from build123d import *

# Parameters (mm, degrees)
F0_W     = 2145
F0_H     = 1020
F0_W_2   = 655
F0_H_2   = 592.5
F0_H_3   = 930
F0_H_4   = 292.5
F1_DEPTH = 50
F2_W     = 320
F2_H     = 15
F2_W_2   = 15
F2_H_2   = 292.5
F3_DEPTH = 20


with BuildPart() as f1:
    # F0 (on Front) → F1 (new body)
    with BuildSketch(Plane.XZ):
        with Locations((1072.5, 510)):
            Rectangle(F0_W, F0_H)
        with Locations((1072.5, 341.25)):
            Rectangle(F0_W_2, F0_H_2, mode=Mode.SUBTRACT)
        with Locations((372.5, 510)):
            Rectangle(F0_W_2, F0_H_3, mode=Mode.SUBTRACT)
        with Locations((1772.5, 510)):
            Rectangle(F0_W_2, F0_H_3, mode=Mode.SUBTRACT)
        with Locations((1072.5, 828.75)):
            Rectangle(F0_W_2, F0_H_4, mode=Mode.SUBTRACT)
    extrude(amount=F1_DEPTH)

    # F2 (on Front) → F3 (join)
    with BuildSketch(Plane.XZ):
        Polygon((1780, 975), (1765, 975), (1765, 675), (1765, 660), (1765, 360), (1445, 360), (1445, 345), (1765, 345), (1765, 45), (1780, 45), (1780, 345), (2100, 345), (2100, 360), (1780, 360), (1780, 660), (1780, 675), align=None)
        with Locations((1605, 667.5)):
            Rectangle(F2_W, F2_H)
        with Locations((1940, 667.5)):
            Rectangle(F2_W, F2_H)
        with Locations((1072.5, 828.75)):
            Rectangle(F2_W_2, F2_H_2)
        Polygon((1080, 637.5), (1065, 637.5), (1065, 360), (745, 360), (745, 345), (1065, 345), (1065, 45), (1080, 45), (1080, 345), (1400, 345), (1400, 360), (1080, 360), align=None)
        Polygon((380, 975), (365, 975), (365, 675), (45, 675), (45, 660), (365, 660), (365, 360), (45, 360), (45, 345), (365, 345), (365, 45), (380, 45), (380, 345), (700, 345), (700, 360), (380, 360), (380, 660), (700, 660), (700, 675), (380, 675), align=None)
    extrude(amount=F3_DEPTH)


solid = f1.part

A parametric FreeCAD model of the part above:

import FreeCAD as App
import Part
import Sketcher

V = App.Vector


def add_polygon(sketch, points):
    """Adds a closed chain of lines whose ends are joined by coincident constraints."""
    first, n = sketch.GeometryCount, len(points)
    for a, b in zip(points, points[1:] + points[:1]):
        sketch.addGeometry(Part.LineSegment(App.Vector(*a, 0), App.Vector(*b, 0)), False)
    for i in range(n):
        sketch.addConstraint(Sketcher.Constraint("Coincident", first + i, 2, first + (i + 1) % n, 1))

doc = App.newDocument("Part")
body = doc.addObject("PartDesign::Body", "Body")

# Sketch on XZ plane
sketch1 = body.newObject("Sketcher::SketchObject", "Sketch")
sketch1.AttachmentSupport = (doc.getObject("XZ_Plane"), [""])
sketch1.MapMode = "FlatFace"
add_polygon(sketch1, [(0, 1020), (0, 0), (2145, 0), (2145, 1020)])  # lines 0-3
add_polygon(sketch1, [(1400, 45), (745, 45), (745, 638), (1400, 638)])  # lines 4-7
add_polygon(sketch1, [(700, 45), (45, 45), (45, 975), (700, 975)])  # lines 8-11
add_polygon(sketch1, [(2100, 45), (1445, 45), (1445, 975), (2100, 975)])  # lines 12-15
add_polygon(sketch1, [(1400, 682), (745, 682), (745, 975), (1400, 975)])  # lines 16-19
sketch1.addConstraint(Sketcher.Constraint("Vertical", 0))
sketch1.addConstraint(Sketcher.Constraint("Horizontal", 1))
sketch1.addConstraint(Sketcher.Constraint("Vertical", 2))
sketch1.addConstraint(Sketcher.Constraint("Horizontal", 3))
sketch1.addConstraint(Sketcher.Constraint("Horizontal", 4))
sketch1.addConstraint(Sketcher.Constraint("Vertical", 5))
sketch1.addConstraint(Sketcher.Constraint("Horizontal", 6))
sketch1.addConstraint(Sketcher.Constraint("Vertical", 7))
sketch1.addConstraint(Sketcher.Constraint("Horizontal", 8))
sketch1.addConstraint(Sketcher.Constraint("Vertical", 9))
sketch1.addConstraint(Sketcher.Constraint("Horizontal", 10))
sketch1.addConstraint(Sketcher.Constraint("Vertical", 11))
sketch1.addConstraint(Sketcher.Constraint("Horizontal", 12))
sketch1.addConstraint(Sketcher.Constraint("Vertical", 13))
sketch1.addConstraint(Sketcher.Constraint("Horizontal", 14))
sketch1.addConstraint(Sketcher.Constraint("Vertical", 15))
sketch1.addConstraint(Sketcher.Constraint("Horizontal", 16))
sketch1.addConstraint(Sketcher.Constraint("Vertical", 17))
sketch1.addConstraint(Sketcher.Constraint("Horizontal", 18))
sketch1.addConstraint(Sketcher.Constraint("Vertical", 19))
sketch1.addConstraint(Sketcher.Constraint("Coincident", 0, 2, -1, 1))
sketch1.addConstraint(Sketcher.Constraint("Horizontal", 7, 2, 8, 2))
sketch1.addConstraint(Sketcher.Constraint("Horizontal", 11, 2, 12, 2))
sketch1.addConstraint(Sketcher.Constraint("Horizontal", 10, 2, 13, 2))
sketch1.addConstraint(Sketcher.Constraint("Horizontal", 14, 2, 17, 2))
sketch1.addConstraint(Sketcher.Constraint("Vertical", 5, 2, 16, 2))
sketch1.addConstraint(Sketcher.Constraint("Vertical", 7, 2, 18, 2))
sketch1.addConstraint(Sketcher.Constraint("Equal", 6, 8))
sketch1.addConstraint(Sketcher.Constraint("Equal", 10, 12))
sketch1.addConstraint(Sketcher.Constraint("DistanceX", 1, 1, 1, 2, 2145.0))
sketch1.addConstraint(Sketcher.Constraint("DistanceX", 4, 2, 4, 1, 655.0))
sketch1.addConstraint(Sketcher.Constraint("DistanceY", 0, 2, 0, 1, 1020.0))
sketch1.addConstraint(Sketcher.Constraint("DistanceY", 9, 1, 9, 2, 930.0))
sketch1.addConstraint(Sketcher.Constraint("DistanceY", 5, 1, 5, 2, 592.5))
sketch1.addConstraint(Sketcher.Constraint("DistanceY", 17, 1, 17, 2, 292.5))
sketch1.addConstraint(Sketcher.Constraint("DistanceX", -1, 1, 4, 2, 745.0))
sketch1.addConstraint(Sketcher.Constraint("DistanceY", -1, 1, 4, 2, 45.0))
sketch1.addConstraint(Sketcher.Constraint("DistanceX", -1, 1, 8, 2, 45.0))
sketch1.addConstraint(Sketcher.Constraint("DistanceX", -1, 1, 12, 2, 1445.0))
pad1 = body.newObject("PartDesign::Pad", "Pad")
pad1.Profile = sketch1
pad1.Length = 50

# Sketch on XZ plane
sketch2 = body.newObject("Sketcher::SketchObject", "Sketch001")
sketch2.AttachmentSupport = (doc.getObject("XZ_Plane"), [""])
sketch2.MapMode = "FlatFace"
add_polygon(sketch2, [(1780, 975), (1765, 975), (1765, 675), (1445, 675), (1445, 660), (1765, 660), (1765, 360), (1445, 360), (1445, 345), (1765, 345), (1765, 45), (1780, 45), (1780, 345), (2100, 345), (2100, 360), (1780, 360), (1780, 660), (2100, 660), (2100, 675), (1780, 675)])  # lines 0-19
add_polygon(sketch2, [(1065, 975), (1065, 682), (1080, 682), (1080, 975)])  # lines 20-23
add_polygon(sketch2, [(1080, 638), (1065, 638), (1065, 360), (745, 360), (745, 345), (1065, 345), (1065, 45), (1080, 45), (1080, 345), (1400, 345), (1400, 360), (1080, 360)])  # lines 24-35
add_polygon(sketch2, [(380, 975), (365, 975), (365, 675), (45, 675), (45, 660), (365, 660), (365, 360), (45, 360), (45, 345), (365, 345), (365, 45), (380, 45), (380, 345), (700, 345), (700, 360), (380, 360), (380, 660), (700, 660), (700, 675), (380, 675)])  # lines 36-55
sketch2.addConstraint(Sketcher.Constraint("Horizontal", 0))
sketch2.addConstraint(Sketcher.Constraint("Vertical", 1))
sketch2.addConstraint(Sketcher.Constraint("Horizontal", 2))
sketch2.addConstraint(Sketcher.Constraint("Vertical", 3))
sketch2.addConstraint(Sketcher.Constraint("Horizontal", 4))
sketch2.addConstraint(Sketcher.Constraint("Vertical", 5))
sketch2.addConstraint(Sketcher.Constraint("Horizontal", 6))
sketch2.addConstraint(Sketcher.Constraint("Vertical", 7))
sketch2.addConstraint(Sketcher.Constraint("Horizontal", 8))
sketch2.addConstraint(Sketcher.Constraint("Vertical", 9))
sketch2.addConstraint(Sketcher.Constraint("Horizontal", 10))
sketch2.addConstraint(Sketcher.Constraint("Vertical", 11))
sketch2.addConstraint(Sketcher.Constraint("Horizontal", 12))
sketch2.addConstraint(Sketcher.Constraint("Vertical", 13))
sketch2.addConstraint(Sketcher.Constraint("Horizontal", 14))
sketch2.addConstraint(Sketcher.Constraint("Vertical", 15))
sketch2.addConstraint(Sketcher.Constraint("Horizontal", 16))
sketch2.addConstraint(Sketcher.Constraint("Vertical", 17))
sketch2.addConstraint(Sketcher.Constraint("Horizontal", 18))
sketch2.addConstraint(Sketcher.Constraint("Vertical", 19))
sketch2.addConstraint(Sketcher.Constraint("Vertical", 20))
sketch2.addConstraint(Sketcher.Constraint("Horizontal", 21))
sketch2.addConstraint(Sketcher.Constraint("Vertical", 22))
sketch2.addConstraint(Sketcher.Constraint("Horizontal", 23))
sketch2.addConstraint(Sketcher.Constraint("Horizontal", 24))
sketch2.addConstraint(Sketcher.Constraint("Vertical", 25))
sketch2.addConstraint(Sketcher.Constraint("Horizontal", 26))
sketch2.addConstraint(Sketcher.Constraint("Vertical", 27))
sketch2.addConstraint(Sketcher.Constraint("Horizontal", 28))
sketch2.addConstraint(Sketcher.Constraint("Vertical", 29))
sketch2.addConstraint(Sketcher.Constraint("Horizontal", 30))
sketch2.addConstraint(Sketcher.Constraint("Vertical", 31))
sketch2.addConstraint(Sketcher.Constraint("Horizontal", 32))
sketch2.addConstraint(Sketcher.Constraint("Vertical", 33))
sketch2.addConstraint(Sketcher.Constraint("Horizontal", 34))
sketch2.addConstraint(Sketcher.Constraint("Vertical", 35))
sketch2.addConstraint(Sketcher.Constraint("Horizontal", 36))
sketch2.addConstraint(Sketcher.Constraint("Vertical", 37))
sketch2.addConstraint(Sketcher.Constraint("Horizontal", 38))
sketch2.addConstraint(Sketcher.Constraint("Vertical", 39))
sketch2.addConstraint(Sketcher.Constraint("Horizontal", 40))
sketch2.addConstraint(Sketcher.Constraint("Vertical", 41))
sketch2.addConstraint(Sketcher.Constraint("Horizontal", 42))
sketch2.addConstraint(Sketcher.Constraint("Vertical", 43))
sketch2.addConstraint(Sketcher.Constraint("Horizontal", 44))
sketch2.addConstraint(Sketcher.Constraint("Vertical", 45))
sketch2.addConstraint(Sketcher.Constraint("Horizontal", 46))
sketch2.addConstraint(Sketcher.Constraint("Vertical", 47))
sketch2.addConstraint(Sketcher.Constraint("Horizontal", 48))
sketch2.addConstraint(Sketcher.Constraint("Vertical", 49))
sketch2.addConstraint(Sketcher.Constraint("Horizontal", 50))
sketch2.addConstraint(Sketcher.Constraint("Vertical", 51))
sketch2.addConstraint(Sketcher.Constraint("Horizontal", 52))
sketch2.addConstraint(Sketcher.Constraint("Vertical", 53))
sketch2.addConstraint(Sketcher.Constraint("Horizontal", 54))
sketch2.addConstraint(Sketcher.Constraint("Vertical", 55))
sketch2.addConstraint(Sketcher.Constraint("Horizontal", 8, 2, 11, 2))
sketch2.addConstraint(Sketcher.Constraint("Horizontal", 6, 2, 13, 2))
sketch2.addConstraint(Sketcher.Constraint("Horizontal", 4, 2, 15, 2))
sketch2.addConstraint(Sketcher.Constraint("Horizontal", 2, 2, 17, 2))
sketch2.addConstraint(Sketcher.Constraint("Horizontal", 19, 2, 22, 2))
sketch2.addConstraint(Sketcher.Constraint("Horizontal", 14, 2, 25, 2))
sketch2.addConstraint(Sketcher.Constraint("Horizontal", 12, 2, 27, 2))
sketch2.addConstraint(Sketcher.Constraint("Horizontal", 10, 2, 29, 2))
sketch2.addConstraint(Sketcher.Constraint("Horizontal", 28, 2, 31, 2))
sketch2.addConstraint(Sketcher.Constraint("Horizontal", 26, 2, 33, 2))
sketch2.addConstraint(Sketcher.Constraint("Horizontal", 23, 2, 36, 2))
sketch2.addConstraint(Sketcher.Constraint("Horizontal", 18, 2, 37, 2))
sketch2.addConstraint(Sketcher.Constraint("Horizontal", 16, 2, 39, 2))
sketch2.addConstraint(Sketcher.Constraint("Horizontal", 34, 2, 41, 2))
sketch2.addConstraint(Sketcher.Constraint("Horizontal", 32, 2, 43, 2))
sketch2.addConstraint(Sketcher.Constraint("Horizontal", 30, 2, 45, 2))
sketch2.addConstraint(Sketcher.Constraint("Horizontal", 44, 2, 47, 2))
sketch2.addConstraint(Sketcher.Constraint("Horizontal", 42, 2, 49, 2))
sketch2.addConstraint(Sketcher.Constraint("Horizontal", 40, 2, 51, 2))
sketch2.addConstraint(Sketcher.Constraint("Horizontal", 38, 2, 53, 2))
sketch2.addConstraint(Sketcher.Constraint("Vertical", 1, 2, 4, 2))
sketch2.addConstraint(Sketcher.Constraint("Vertical", 3, 2, 6, 2))
sketch2.addConstraint(Sketcher.Constraint("Vertical", 5, 2, 8, 2))
sketch2.addConstraint(Sketcher.Constraint("Vertical", 11, 2, 14, 2))
sketch2.addConstraint(Sketcher.Constraint("Vertical", 13, 2, 16, 2))
sketch2.addConstraint(Sketcher.Constraint("Vertical", 15, 2, 18, 2))
sketch2.addConstraint(Sketcher.Constraint("Vertical", 23, 2, 24, 2))
sketch2.addConstraint(Sketcher.Constraint("Vertical", 25, 2, 28, 2))
sketch2.addConstraint(Sketcher.Constraint("Vertical", 22, 2, 30, 2))
sketch2.addConstraint(Sketcher.Constraint("Vertical", 31, 2, 34, 2))
sketch2.addConstraint(Sketcher.Constraint("Vertical", 37, 2, 40, 2))
sketch2.addConstraint(Sketcher.Constraint("Vertical", 39, 2, 42, 2))
sketch2.addConstraint(Sketcher.Constraint("Vertical", 41, 2, 44, 2))
sketch2.addConstraint(Sketcher.Constraint("Vertical", 47, 2, 50, 2))
sketch2.addConstraint(Sketcher.Constraint("Vertical", 49, 2, 52, 2))
sketch2.addConstraint(Sketcher.Constraint("Vertical", 51, 2, 54, 2))
sketch2.addConstraint(Sketcher.Constraint("Equal", 8, 12))
sketch2.addConstraint(Sketcher.Constraint("Equal", 10, 21))
sketch2.addConstraint(Sketcher.Constraint("Equal", 18, 26))
sketch2.addConstraint(Sketcher.Constraint("Equal", 28, 32))
sketch2.addConstraint(Sketcher.Constraint("Equal", 30, 36))
sketch2.addConstraint(Sketcher.Constraint("Equal", 34, 38))
sketch2.addConstraint(Sketcher.Constraint("Equal", 44, 48))
sketch2.addConstraint(Sketcher.Constraint("Equal", 46, 3))
sketch2.addConstraint(Sketcher.Constraint("Equal", 1, 5))
sketch2.addConstraint(Sketcher.Constraint("Equal", 3, 7))
sketch2.addConstraint(Sketcher.Constraint("Equal", 5, 9))
sketch2.addConstraint(Sketcher.Constraint("DistanceX", 0, 2, 0, 1, 15.0))
sketch2.addConstraint(Sketcher.Constraint("DistanceX", 2, 2, 2, 1, 320.0))
sketch2.addConstraint(Sketcher.Constraint("DistanceY", 1, 2, 1, 1, 300.0))
sketch2.addConstraint(Sketcher.Constraint("DistanceY", 20, 2, 20, 1, 292.5))
sketch2.addConstraint(Sketcher.Constraint("DistanceY", 25, 2, 25, 1, 277.5))
sketch2.addConstraint(Sketcher.Constraint("DistanceX", -1, 1, 0, 2, 1765.0))
sketch2.addConstraint(Sketcher.Constraint("DistanceY", -1, 1, 0, 2, 975.0))
sketch2.addConstraint(Sketcher.Constraint("DistanceX", -1, 1, 20, 2, 1065.0))
sketch2.addConstraint(Sketcher.Constraint("DistanceX", -1, 1, 36, 2, 365.0))
pad2 = body.newObject("PartDesign::Pad", "Pad001")
pad2.Profile = sketch2
pad2.Length = 20

doc.recompute()
